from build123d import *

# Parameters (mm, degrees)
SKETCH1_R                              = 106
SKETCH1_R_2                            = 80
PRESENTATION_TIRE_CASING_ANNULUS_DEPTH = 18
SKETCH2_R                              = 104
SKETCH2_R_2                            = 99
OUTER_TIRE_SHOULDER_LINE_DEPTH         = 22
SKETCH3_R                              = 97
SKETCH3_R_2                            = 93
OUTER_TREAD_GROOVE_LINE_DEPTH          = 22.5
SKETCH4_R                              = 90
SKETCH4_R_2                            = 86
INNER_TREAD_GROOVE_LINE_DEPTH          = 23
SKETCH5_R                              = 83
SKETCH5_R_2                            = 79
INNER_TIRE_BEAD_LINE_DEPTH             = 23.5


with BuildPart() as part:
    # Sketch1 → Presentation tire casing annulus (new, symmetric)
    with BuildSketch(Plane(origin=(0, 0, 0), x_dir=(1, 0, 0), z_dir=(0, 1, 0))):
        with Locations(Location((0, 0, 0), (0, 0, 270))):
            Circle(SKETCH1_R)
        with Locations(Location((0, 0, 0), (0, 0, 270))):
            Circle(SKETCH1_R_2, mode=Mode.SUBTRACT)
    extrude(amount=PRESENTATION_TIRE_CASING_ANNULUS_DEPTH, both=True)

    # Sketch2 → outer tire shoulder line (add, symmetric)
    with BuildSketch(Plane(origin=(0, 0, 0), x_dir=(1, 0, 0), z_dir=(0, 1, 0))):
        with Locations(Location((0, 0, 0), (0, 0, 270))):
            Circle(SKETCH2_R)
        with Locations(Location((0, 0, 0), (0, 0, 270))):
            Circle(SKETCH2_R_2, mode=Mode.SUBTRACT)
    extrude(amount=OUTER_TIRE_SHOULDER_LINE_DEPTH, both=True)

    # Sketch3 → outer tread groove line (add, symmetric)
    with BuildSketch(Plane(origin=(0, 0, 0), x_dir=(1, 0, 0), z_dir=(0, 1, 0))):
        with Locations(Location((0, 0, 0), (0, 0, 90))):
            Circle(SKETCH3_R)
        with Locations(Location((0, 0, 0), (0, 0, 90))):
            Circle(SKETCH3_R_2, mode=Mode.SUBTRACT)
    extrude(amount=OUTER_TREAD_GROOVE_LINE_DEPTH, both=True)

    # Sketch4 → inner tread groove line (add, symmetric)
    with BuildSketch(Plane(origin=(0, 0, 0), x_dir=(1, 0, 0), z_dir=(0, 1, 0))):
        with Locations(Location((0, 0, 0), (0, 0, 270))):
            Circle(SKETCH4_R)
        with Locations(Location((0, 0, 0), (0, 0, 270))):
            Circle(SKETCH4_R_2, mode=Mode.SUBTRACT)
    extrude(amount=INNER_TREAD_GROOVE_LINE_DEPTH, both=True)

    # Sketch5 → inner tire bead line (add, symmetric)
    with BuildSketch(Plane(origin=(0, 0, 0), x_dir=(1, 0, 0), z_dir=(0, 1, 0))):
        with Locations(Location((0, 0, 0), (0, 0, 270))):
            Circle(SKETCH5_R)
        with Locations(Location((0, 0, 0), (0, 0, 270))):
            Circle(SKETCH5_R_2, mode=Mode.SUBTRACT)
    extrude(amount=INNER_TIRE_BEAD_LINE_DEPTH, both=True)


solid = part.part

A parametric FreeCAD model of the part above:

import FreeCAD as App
import Part
import Sketcher
from FreeCAD import Vector
Q = App.Units.Quantity

doc = App.newDocument("Part")
body = doc.addObject("PartDesign::Body", "Body")

# Sketch on XZ plane
sketch1 = body.newObject("Sketcher::SketchObject", "Sketch")
sketch1.AttachmentSupport = (doc.getObject("XZ_Plane"), [""])
sketch1.MapMode = "FlatFace"
sketch1.addGeometry([
    Part.Circle(Vector(0, 0, 0), Vector(0, 0, 1), 106),
    Part.Circle(Vector(0, 0, 0), Vector(0, 0, 1), 80),
], False)
sketch1.addConstraint([
    Sketcher.Constraint("Coincident", 0, 3, -1, 1),
    Sketcher.Constraint("Coincident", 1, 3, -1, 1),
    Sketcher.Constraint("Diameter", 0, Q("212 mm")),
    Sketcher.Constraint("Diameter", 1, Q("160 mm")),
])
pad1 = body.newObject("PartDesign::Pad", "Pad")
pad1.Profile = sketch1
pad1.Length = 36
pad1.Midplane = True

# Sketch on XZ plane
sketch2 = body.newObject("Sketcher::SketchObject", "Sketch001")
sketch2.AttachmentSupport = (doc.getObject("XZ_Plane"), [""])
sketch2.MapMode = "FlatFace"
sketch2.addGeometry([
    Part.Circle(Vector(0, 0, 0), Vector(0, 0, 1), 104),
    Part.Circle(Vector(0, 0, 0), Vector(0, 0, 1), 99),
], False)
sketch2.addConstraint([
    Sketcher.Constraint("Coincident", 0, 3, -1, 1),
    Sketcher.Constraint("Coincident", 1, 3, -1, 1),
    Sketcher.Constraint("Diameter", 0, Q("208 mm")),
    Sketcher.Constraint("Diameter", 1, Q("198 mm")),
])
pad2 = body.newObject("PartDesign::Pad", "Pad001")
pad2.Profile = sketch2
pad2.Length = 44
pad2.Midplane = True

# Sketch on XZ plane
sketch3 = body.newObject("Sketcher::SketchObject", "Sketch002")
sketch3.AttachmentSupport = (doc.getObject("XZ_Plane"), [""])
sketch3.MapMode = "FlatFace"
sketch3.addGeometry([
    Part.Circle(Vector(0, 0, 0), Vector(0, 0, 1), 97),
    Part.Circle(Vector(0, 0, 0), Vector(0, 0, 1), 93),
], False)
sketch3.addConstraint([
    Sketcher.Constraint("Coincident", 0, 3, -1, 1),
    Sketcher.Constraint("Coincident", 1, 3, -1, 1),
    Sketcher.Constraint("Diameter", 0, Q("194 mm")),
    Sketcher.Constraint("Diameter", 1, Q("186 mm")),
])
pad3 = body.newObject("PartDesign::Pad", "Pad002")
pad3.Profile = sketch3
pad3.Length = 45
pad3.Midplane = True

# Sketch on XZ plane
sketch4 = body.newObject("Sketcher::SketchObject", "Sketch003")
sketch4.AttachmentSupport = (doc.getObject("XZ_Plane"), [""])
sketch4.MapMode = "FlatFace"
sketch4.addGeometry([
    Part.Circle(Vector(0, 0, 0), Vector(0, 0, 1), 90),
    Part.Circle(Vector(0, 0, 0), Vector(0, 0, 1), 86),
], False)
sketch4.addConstraint([
    Sketcher.Constraint("Coincident", 0, 3, -1, 1),
    Sketcher.Constraint("Coincident", 1, 3, -1, 1),
    Sketcher.Constraint("Diameter", 0, Q("180 mm")),
    Sketcher.Constraint("Diameter", 1, Q("172 mm")),
])
pad4 = body.newObject("PartDesign::Pad", "Pad003")
pad4.Profile = sketch4
pad4.Length = 46
pad4.Midplane = True

# Sketch on XZ plane
sketch5 = body.newObject("Sketcher::SketchObject", "Sketch004")
sketch5.AttachmentSupport = (doc.getObject("XZ_Plane"), [""])
sketch5.MapMode = "FlatFace"
sketch5.addGeometry([
    Part.Circle(Vector(0, 0, 0), Vector(0, 0, 1), 83),
    Part.Circle(Vector(0, 0, 0), Vector(0, 0, 1), 79),
], False)
sketch5.addConstraint([
    Sketcher.Constraint("Coincident", 0, 3, -1, 1),
    Sketcher.Constraint("Coincident", 1, 3, -1, 1),
    Sketcher.Constraint("Diameter", 0, Q("166 mm")),
    Sketcher.Constraint("Diameter", 1, Q("158 mm")),
])
pad5 = body.newObject("PartDesign::Pad", "Pad004")
pad5.Profile = sketch5
pad5.Length = 47
pad5.Midplane = True

doc.recompute()
